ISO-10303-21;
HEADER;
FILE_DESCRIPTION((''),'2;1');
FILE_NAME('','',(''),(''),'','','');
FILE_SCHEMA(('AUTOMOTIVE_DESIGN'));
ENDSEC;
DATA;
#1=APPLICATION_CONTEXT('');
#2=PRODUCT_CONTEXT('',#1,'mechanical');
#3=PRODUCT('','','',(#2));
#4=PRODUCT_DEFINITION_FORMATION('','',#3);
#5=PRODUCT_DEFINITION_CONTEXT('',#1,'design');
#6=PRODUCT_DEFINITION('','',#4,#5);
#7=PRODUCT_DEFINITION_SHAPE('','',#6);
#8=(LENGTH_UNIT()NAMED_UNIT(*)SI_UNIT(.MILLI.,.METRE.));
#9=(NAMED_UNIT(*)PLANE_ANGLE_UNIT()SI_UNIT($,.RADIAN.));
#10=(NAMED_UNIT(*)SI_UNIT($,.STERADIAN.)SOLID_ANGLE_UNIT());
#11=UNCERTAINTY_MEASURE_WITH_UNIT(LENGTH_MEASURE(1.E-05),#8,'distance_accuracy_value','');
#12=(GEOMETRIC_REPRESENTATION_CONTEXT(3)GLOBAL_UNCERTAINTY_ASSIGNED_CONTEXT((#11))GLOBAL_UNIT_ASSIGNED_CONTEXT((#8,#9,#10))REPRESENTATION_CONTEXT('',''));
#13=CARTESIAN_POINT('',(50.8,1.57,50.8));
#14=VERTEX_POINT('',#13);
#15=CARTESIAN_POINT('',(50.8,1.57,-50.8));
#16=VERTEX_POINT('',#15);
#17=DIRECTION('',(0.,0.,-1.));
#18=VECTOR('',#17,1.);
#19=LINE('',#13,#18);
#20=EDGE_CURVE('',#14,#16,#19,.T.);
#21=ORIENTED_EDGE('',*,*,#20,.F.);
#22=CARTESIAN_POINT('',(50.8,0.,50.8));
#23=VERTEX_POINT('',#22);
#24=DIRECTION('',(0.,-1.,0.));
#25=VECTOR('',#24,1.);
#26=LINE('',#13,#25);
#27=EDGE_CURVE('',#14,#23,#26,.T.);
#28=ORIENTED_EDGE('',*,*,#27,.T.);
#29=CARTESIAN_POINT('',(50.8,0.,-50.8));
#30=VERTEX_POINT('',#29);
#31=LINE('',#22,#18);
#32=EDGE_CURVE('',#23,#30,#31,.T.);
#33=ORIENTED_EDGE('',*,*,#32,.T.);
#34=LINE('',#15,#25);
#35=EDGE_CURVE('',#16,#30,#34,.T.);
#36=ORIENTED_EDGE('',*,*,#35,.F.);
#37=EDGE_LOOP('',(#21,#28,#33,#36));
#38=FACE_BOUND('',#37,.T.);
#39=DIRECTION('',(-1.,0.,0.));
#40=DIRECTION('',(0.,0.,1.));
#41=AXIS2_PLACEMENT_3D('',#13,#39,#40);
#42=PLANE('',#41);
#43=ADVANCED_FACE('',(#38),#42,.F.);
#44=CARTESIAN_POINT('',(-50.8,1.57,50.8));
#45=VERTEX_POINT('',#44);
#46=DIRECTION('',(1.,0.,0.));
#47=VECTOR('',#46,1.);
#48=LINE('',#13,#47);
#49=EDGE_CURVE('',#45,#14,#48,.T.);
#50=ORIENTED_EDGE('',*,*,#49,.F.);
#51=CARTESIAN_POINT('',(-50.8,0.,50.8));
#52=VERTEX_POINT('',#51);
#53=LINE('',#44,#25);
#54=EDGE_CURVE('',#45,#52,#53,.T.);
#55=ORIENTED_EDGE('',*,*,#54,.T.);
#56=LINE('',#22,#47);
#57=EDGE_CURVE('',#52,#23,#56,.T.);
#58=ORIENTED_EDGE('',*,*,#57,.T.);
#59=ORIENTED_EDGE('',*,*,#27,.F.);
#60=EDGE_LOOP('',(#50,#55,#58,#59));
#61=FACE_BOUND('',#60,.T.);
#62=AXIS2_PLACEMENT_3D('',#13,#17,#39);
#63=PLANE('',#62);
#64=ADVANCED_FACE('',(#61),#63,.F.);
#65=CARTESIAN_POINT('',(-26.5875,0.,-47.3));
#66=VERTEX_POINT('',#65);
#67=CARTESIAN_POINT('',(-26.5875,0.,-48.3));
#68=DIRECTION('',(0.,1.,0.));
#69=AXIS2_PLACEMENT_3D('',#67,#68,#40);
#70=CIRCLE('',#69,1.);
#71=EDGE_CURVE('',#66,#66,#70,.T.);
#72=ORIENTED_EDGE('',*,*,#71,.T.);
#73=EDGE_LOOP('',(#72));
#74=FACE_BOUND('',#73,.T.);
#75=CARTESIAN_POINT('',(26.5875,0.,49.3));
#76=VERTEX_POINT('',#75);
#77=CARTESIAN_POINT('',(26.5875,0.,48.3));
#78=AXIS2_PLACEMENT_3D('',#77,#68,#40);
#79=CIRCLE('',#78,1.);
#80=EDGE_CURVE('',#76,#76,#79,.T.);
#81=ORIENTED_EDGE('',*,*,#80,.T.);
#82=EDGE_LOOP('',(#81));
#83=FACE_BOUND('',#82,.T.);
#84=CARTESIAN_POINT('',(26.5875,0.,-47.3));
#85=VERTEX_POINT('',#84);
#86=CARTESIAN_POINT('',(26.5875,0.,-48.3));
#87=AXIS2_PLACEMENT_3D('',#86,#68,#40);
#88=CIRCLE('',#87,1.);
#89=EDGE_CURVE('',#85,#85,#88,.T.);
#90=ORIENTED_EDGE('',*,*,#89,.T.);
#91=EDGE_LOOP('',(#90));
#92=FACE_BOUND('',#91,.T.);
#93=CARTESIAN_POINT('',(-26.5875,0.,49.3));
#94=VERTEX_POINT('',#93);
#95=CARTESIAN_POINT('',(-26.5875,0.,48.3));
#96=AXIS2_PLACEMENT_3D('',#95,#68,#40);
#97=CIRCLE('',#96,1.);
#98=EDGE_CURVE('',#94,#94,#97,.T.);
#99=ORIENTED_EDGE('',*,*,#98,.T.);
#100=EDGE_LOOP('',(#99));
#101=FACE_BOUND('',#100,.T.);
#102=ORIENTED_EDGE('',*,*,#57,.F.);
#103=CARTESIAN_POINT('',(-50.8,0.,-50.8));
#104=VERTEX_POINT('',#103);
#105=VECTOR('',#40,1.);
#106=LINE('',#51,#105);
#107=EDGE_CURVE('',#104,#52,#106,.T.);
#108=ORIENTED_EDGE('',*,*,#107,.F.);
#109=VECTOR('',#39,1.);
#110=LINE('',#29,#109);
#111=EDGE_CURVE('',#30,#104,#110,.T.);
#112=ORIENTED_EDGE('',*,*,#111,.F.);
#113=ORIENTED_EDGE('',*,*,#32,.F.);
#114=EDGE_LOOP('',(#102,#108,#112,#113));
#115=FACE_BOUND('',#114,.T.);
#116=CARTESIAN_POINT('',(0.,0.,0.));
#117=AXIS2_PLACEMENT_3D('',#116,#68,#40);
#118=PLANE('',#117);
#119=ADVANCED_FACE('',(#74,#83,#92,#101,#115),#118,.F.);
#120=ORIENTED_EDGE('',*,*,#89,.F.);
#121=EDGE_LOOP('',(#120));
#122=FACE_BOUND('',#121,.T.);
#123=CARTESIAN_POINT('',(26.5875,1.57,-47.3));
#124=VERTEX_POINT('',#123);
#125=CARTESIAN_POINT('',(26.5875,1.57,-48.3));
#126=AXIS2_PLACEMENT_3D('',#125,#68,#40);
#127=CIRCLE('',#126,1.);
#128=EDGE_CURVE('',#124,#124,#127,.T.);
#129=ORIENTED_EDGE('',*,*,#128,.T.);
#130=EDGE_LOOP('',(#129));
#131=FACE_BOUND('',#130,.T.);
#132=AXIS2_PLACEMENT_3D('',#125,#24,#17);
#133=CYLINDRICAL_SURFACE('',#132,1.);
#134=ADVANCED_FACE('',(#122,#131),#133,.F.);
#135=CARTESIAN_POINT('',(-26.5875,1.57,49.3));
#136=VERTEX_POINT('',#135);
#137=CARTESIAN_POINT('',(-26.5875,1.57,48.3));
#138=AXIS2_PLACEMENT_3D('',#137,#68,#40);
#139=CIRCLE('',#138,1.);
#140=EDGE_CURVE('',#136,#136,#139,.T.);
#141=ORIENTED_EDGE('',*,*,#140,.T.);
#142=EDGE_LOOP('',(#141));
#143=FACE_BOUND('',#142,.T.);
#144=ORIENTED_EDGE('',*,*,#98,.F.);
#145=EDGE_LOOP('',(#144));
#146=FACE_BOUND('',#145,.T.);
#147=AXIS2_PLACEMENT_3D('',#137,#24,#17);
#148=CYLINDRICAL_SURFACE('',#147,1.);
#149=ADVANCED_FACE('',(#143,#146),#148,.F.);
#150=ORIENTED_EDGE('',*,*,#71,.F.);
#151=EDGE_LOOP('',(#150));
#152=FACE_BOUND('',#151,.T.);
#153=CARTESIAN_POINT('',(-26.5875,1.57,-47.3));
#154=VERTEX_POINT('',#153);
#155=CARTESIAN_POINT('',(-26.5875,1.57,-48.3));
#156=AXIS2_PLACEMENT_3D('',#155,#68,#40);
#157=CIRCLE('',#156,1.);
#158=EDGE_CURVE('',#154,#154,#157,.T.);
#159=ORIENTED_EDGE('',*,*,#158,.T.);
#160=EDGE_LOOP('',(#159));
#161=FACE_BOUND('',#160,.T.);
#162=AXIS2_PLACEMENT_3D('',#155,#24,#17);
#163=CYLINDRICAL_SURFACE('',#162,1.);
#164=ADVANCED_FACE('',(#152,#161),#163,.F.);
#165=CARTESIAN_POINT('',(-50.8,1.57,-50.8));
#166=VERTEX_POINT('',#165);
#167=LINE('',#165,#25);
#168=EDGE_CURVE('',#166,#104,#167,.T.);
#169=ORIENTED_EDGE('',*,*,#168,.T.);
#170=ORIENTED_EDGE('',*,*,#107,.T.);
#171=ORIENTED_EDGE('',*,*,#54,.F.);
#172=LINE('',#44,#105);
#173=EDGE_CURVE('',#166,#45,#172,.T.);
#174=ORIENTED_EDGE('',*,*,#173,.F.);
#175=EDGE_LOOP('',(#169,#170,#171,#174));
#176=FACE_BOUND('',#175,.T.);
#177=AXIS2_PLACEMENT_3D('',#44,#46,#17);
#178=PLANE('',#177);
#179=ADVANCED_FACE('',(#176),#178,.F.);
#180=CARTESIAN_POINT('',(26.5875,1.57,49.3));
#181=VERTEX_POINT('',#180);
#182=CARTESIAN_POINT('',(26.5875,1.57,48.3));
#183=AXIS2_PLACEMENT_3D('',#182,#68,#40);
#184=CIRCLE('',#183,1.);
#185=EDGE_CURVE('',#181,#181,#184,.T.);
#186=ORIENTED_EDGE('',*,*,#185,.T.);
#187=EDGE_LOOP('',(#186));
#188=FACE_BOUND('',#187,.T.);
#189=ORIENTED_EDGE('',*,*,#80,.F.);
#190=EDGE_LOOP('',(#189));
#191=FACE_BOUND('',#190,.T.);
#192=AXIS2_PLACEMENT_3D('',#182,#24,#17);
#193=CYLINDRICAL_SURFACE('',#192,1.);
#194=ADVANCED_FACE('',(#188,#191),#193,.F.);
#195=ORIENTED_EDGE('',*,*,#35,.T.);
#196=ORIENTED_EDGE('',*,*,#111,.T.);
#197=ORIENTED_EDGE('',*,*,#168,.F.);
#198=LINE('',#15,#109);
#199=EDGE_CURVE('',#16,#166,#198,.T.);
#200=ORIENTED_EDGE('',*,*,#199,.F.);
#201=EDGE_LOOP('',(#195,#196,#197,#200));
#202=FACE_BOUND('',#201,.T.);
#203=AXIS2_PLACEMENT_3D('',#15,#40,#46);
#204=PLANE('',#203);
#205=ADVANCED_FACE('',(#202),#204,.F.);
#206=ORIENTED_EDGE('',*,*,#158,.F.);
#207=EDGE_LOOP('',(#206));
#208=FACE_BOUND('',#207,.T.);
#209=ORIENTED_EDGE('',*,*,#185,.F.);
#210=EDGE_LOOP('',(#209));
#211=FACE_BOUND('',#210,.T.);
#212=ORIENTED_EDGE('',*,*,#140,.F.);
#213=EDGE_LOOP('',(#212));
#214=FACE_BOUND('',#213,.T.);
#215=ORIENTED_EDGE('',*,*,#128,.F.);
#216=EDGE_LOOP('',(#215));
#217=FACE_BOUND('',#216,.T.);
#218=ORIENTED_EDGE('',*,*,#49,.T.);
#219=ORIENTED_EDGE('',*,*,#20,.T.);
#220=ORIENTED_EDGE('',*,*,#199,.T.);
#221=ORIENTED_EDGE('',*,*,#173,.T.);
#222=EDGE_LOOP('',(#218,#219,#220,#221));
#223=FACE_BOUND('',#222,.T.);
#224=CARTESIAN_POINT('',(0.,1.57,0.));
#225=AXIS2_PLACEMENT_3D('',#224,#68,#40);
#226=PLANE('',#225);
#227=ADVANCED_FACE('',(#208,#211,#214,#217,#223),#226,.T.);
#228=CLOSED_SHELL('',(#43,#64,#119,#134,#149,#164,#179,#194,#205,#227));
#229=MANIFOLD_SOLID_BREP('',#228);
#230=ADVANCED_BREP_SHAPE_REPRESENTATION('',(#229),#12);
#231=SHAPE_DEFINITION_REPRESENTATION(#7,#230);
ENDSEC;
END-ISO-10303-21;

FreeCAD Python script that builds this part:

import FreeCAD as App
import Part
import Sketcher
from FreeCAD import Vector
Q = App.Units.Quantity


def add_polygon(sketch, points):
    """Adds a closed chain of lines whose ends are joined by coincident constraints."""
    first, n = sketch.GeometryCount, len(points)
    for a, b in zip(points, points[1:] + points[:1]):
        sketch.addGeometry(Part.LineSegment(App.Vector(*a, 0), App.Vector(*b, 0)), False)
    for i in range(n):
        sketch.addConstraint(Sketcher.Constraint("Coincident", first + i, 2, first + (i + 1) % n, 1))

doc = App.newDocument("Part")
body = doc.addObject("PartDesign::Body", "Body")

sketch1 = body.newObject("Sketcher::SketchObject", "Sketch")
sketch1.AttachmentSupport = (doc.getObject("XZ_Plane"), [""])
sketch1.MapMode = "FlatFace"
add_polygon(sketch1, [(-50.8, -50.8), (-50.8, 50.8), (50.8, 50.8), (50.8, -50.8)])
sketch1.addGeometry(Part.Circle(Vector(-26.6, 48.3, 0), Vector(0, 0, 1), 1), False)
sketch1.addGeometry(Part.Circle(Vector(26.6, 48.3, 0), Vector(0, 0, 1), 1), False)
sketch1.addGeometry(Part.Circle(Vector(-26.6, -48.3, 0), Vector(0, 0, 1), 1), False)
sketch1.addGeometry(Part.Circle(Vector(26.6, -48.3, 0), Vector(0, 0, 1), 1), False)
sketch1.addConstraint([
    Sketcher.Constraint("Vertical", 0),
    Sketcher.Constraint("Horizontal", 1),
    Sketcher.Constraint("Vertical", 2),
    Sketcher.Constraint("Horizontal", 3),
    Sketcher.Constraint("Equal", 4, 5),
    Sketcher.Constraint("Equal", 5, 6),
    Sketcher.Constraint("Equal", 6, 7),
    Sketcher.Constraint("Symmetric", 5, 3, 6, 3, -1, 1),
    Sketcher.Constraint("Symmetric", 4, 3, 7, 3, -1, 1),
    Sketcher.Constraint("Symmetric", 0, 2, 2, 2, -1, 1),
    Sketcher.Constraint("Symmetric", 4, 3, 5, 3, -2),
    Sketcher.Constraint("Equal", 3, 0),
    Sketcher.Constraint("Diameter", 4, Q("2 mm")),
    Sketcher.Constraint("DistanceX", 1, 1, 1, 2, Q("101.6 mm")),
    Sketcher.Constraint("DistanceY", -1, 1, 4, 3, Q("48.3 mm")),
    Sketcher.Constraint("DistanceX", 4, 3, 5, 3, Q("53.175 mm")),
])
pad1 = body.newObject("PartDesign::Pad", "Pad")
pad1.Profile = sketch1
pad1.Length = 1.57
pad1.Reversed = True

doc.recompute()
